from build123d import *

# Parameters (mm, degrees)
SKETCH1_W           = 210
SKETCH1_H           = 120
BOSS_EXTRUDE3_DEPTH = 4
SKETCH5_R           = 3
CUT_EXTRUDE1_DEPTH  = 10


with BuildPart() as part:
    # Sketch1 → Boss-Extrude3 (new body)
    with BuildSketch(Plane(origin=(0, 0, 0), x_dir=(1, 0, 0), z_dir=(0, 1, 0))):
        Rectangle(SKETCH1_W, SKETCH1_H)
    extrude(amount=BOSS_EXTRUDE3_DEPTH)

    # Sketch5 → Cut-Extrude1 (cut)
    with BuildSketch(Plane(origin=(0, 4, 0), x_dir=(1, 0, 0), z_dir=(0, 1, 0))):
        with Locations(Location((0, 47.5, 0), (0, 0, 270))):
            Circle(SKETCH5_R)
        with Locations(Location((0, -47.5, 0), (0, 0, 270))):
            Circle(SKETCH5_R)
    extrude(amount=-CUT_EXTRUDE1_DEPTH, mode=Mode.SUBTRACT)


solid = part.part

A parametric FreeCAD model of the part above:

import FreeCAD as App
import Part
import Sketcher
from FreeCAD import Vector
Q = App.Units.Quantity


def add_polygon(sketch, points):
    """Adds a closed chain of lines whose ends are joined by coincident constraints."""
    first, n = sketch.GeometryCount, len(points)
    for a, b in zip(points, points[1:] + points[:1]):
        sketch.addGeometry(Part.LineSegment(App.Vector(*a, 0), App.Vector(*b, 0)), False)
    for i in range(n):
        sketch.addConstraint(Sketcher.Constraint("Coincident", first + i, 2, first + (i + 1) % n, 1))

doc = App.newDocument("Part")
body = doc.addObject("PartDesign::Body", "Body")

sketch1 = doc.addObject("Sketcher::SketchObject", "Sketch")
body.addObject(sketch1)
sketch1.AttachmentSupport = (doc.XZ_Plane, [""])
sketch1.MapMode = "FlatFace"
add_polygon(sketch1, [(-105, -60), (-105, 60), (105, 60), (105, -60)])
sketch1.addConstraint([
    Sketcher.Constraint("Vertical", 0),
    Sketcher.Constraint("Horizontal", 1),
    Sketcher.Constraint("Vertical", 2),
    Sketcher.Constraint("Horizontal", 3),
    Sketcher.Constraint("Symmetric", 0, 2, 2, 2, -1, 1),
    Sketcher.Constraint("DistanceX", 1, 1, 1, 2, Q("210 mm")),
    Sketcher.Constraint("DistanceY", 0, 1, 0, 2, Q("120 mm")),
])
pad1 = doc.addObject("PartDesign::Pad", "Pad")
body.addObject(pad1)
pad1.Profile = sketch1
pad1.Length = 4
pad1.Reversed = True

sketch2 = doc.addObject("Sketcher::SketchObject", "Sketch001")
body.addObject(sketch2)
sketch2.AttachmentSupport = (doc.XZ_Plane, [""])
sketch2.MapMode = "FlatFace"
sketch2.AttachmentOffset = App.Placement(Vector(0, 0, -4), App.Rotation())
sketch2.addGeometry([
    Part.Circle(Vector(0, -47.5, 0), Vector(0, 0, 1), 3),
    Part.Circle(Vector(0, 47.5, 0), Vector(0, 0, 1), 3),
], False)
sketch2.addConstraint([
    Sketcher.Constraint("Equal", 0, 1),
    Sketcher.Constraint("Symmetric", 0, 3, 1, 3, -1, 1),
    Sketcher.Constraint("PointOnObject", 0, 3, -2),
    Sketcher.Constraint("Diameter", 0, Q("6 mm")),
    Sketcher.Constraint("DistanceY", 0, 3, 1, 3, Q("95 mm")),
])
pocket1 = doc.addObject("PartDesign::Pocket", "Pocket")
body.addObject(pocket1)
pocket1.Profile = sketch2
pocket1.Length = 10
pocket1.Reversed = True

doc.recompute()
